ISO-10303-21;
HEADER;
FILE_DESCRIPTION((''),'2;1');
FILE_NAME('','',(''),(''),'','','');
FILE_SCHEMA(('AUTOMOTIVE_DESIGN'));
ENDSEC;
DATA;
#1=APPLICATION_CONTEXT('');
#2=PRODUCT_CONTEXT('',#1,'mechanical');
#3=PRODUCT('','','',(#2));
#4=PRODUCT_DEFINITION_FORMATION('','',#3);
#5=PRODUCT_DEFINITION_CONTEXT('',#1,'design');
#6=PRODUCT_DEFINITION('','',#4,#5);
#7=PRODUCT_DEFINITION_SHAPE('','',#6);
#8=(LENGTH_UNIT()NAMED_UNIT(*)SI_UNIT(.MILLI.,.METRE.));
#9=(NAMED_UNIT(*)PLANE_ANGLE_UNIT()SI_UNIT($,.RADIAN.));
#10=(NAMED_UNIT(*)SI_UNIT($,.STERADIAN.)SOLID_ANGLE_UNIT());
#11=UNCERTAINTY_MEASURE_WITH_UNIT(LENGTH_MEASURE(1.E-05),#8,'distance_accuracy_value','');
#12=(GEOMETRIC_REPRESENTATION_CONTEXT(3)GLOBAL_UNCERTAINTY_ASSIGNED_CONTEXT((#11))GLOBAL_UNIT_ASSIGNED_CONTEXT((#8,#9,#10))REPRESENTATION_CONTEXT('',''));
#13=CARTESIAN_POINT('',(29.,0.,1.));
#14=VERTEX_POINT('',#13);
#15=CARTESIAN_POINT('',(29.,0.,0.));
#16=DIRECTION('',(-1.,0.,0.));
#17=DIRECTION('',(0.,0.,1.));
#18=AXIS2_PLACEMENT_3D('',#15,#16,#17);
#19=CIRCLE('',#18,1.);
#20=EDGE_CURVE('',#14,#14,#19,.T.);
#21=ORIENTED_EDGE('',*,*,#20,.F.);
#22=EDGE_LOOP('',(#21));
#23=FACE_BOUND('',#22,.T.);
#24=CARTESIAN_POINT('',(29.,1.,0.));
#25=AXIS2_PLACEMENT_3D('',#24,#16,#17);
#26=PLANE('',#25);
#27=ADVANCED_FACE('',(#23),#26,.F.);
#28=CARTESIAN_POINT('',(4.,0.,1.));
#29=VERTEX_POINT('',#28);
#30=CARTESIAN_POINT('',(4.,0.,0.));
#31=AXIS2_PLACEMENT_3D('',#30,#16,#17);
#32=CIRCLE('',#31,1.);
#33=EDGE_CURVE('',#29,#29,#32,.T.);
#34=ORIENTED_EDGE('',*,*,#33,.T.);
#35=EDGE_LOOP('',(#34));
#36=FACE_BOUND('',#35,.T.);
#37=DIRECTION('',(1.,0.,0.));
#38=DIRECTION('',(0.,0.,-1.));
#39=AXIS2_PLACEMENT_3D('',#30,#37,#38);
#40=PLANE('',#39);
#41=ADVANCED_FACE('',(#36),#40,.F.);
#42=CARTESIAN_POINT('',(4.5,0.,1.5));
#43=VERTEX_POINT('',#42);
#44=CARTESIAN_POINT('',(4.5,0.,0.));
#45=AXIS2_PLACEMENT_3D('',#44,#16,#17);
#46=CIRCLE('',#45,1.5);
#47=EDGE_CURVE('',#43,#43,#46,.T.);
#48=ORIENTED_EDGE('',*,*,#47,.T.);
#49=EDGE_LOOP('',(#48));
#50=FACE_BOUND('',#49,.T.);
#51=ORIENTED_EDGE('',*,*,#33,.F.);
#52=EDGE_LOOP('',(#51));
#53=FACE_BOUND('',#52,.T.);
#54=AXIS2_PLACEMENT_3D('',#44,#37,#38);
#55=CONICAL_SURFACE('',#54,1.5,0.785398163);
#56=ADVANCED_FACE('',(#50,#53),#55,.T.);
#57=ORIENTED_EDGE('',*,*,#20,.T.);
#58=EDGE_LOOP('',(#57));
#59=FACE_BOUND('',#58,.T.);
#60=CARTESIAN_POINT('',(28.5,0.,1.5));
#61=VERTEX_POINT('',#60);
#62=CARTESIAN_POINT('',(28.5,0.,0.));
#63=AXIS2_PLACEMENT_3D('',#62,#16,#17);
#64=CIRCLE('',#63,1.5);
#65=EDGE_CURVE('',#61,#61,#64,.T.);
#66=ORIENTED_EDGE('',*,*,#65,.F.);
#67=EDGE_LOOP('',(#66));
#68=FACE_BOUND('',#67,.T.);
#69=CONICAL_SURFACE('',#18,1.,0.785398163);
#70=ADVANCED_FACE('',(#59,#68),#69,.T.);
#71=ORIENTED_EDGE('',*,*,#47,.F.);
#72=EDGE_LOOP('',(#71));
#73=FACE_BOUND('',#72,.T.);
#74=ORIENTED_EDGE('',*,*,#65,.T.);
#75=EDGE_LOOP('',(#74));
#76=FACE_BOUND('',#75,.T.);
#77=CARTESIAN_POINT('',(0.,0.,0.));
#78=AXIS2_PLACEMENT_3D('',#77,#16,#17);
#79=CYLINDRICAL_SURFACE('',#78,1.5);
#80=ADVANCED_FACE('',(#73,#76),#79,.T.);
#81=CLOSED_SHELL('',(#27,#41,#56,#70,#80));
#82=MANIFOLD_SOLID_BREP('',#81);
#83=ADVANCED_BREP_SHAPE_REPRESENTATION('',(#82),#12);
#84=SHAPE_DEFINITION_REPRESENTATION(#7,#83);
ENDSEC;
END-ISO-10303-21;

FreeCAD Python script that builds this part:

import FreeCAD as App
import Part
import Sketcher
Q = App.Units.Quantity

doc = App.newDocument("Part")
body = doc.addObject("PartDesign::Body", "Body")

sketch1 = body.newObject("Sketcher::SketchObject", "Sketch")
sketch1.AttachmentSupport = (doc.getObject("XY_Plane"), [""])
sketch1.MapMode = "FlatFace"
sketch1.addGeometry(Part.LineSegment(App.Vector(4, 1, 0), App.Vector(4, 0, 0)), False)
sketch1.addGeometry(Part.LineSegment(App.Vector(4, 0, 0), App.Vector(29, 0, 0)), False)
sketch1.addGeometry(Part.LineSegment(App.Vector(29, 0, 0), App.Vector(29, 1, 0)), False)
sketch1.addGeometry(Part.LineSegment(App.Vector(29, 1, 0), App.Vector(28.5, 1.5, 0)), False)
sketch1.addGeometry(Part.LineSegment(App.Vector(28.5, 1.5, 0), App.Vector(4.5, 1.5, 0)), False)
sketch1.addGeometry(Part.LineSegment(App.Vector(4.5, 1.5, 0), App.Vector(4, 1, 0)), False)
sketch1.addConstraint(Sketcher.Constraint("Coincident", 0, 2, 1, 1))
sketch1.addConstraint(Sketcher.Constraint("Coincident", 1, 2, 2, 1))
sketch1.addConstraint(Sketcher.Constraint("Coincident", 2, 2, 3, 1))
sketch1.addConstraint(Sketcher.Constraint("Coincident", 3, 2, 4, 1))
sketch1.addConstraint(Sketcher.Constraint("Coincident", 4, 2, 5, 1))
sketch1.addConstraint(Sketcher.Constraint("Coincident", 5, 2, 0, 1))
sketch1.addConstraint(Sketcher.Constraint("Vertical", 0))
sketch1.addConstraint(Sketcher.Constraint("Horizontal", 1))
sketch1.addConstraint(Sketcher.Constraint("Vertical", 2))
sketch1.addConstraint(Sketcher.Constraint("Horizontal", 4))
sketch1.addConstraint(Sketcher.Constraint("PointOnObject", 0, 2, -1))
sketch1.addConstraint(Sketcher.Constraint("Perpendicular", 3, 5))
sketch1.addConstraint(Sketcher.Constraint("Horizontal", 2, 2, 5, 2))
sketch1.addConstraint(Sketcher.Constraint("Equal", 3, 5))
sketch1.addConstraint(Sketcher.Constraint("DistanceX", 1, 1, 1, 2, Q("25 mm")))
sketch1.addConstraint(Sketcher.Constraint("DistanceX", 4, 2, 4, 1, Q("24 mm")))
sketch1.addConstraint(Sketcher.Constraint("DistanceY", 0, 2, 0, 1, Q("1 mm")))
sketch1.addConstraint(Sketcher.Constraint("DistanceX", -1, 1, 0, 2, Q("4 mm")))
revolution = body.newObject("PartDesign::Revolution", "Revolution")
revolution.Profile = sketch1
revolution.ReferenceAxis = (sketch1, ["H_Axis"])
revolution.Angle = 360

doc.recompute()
